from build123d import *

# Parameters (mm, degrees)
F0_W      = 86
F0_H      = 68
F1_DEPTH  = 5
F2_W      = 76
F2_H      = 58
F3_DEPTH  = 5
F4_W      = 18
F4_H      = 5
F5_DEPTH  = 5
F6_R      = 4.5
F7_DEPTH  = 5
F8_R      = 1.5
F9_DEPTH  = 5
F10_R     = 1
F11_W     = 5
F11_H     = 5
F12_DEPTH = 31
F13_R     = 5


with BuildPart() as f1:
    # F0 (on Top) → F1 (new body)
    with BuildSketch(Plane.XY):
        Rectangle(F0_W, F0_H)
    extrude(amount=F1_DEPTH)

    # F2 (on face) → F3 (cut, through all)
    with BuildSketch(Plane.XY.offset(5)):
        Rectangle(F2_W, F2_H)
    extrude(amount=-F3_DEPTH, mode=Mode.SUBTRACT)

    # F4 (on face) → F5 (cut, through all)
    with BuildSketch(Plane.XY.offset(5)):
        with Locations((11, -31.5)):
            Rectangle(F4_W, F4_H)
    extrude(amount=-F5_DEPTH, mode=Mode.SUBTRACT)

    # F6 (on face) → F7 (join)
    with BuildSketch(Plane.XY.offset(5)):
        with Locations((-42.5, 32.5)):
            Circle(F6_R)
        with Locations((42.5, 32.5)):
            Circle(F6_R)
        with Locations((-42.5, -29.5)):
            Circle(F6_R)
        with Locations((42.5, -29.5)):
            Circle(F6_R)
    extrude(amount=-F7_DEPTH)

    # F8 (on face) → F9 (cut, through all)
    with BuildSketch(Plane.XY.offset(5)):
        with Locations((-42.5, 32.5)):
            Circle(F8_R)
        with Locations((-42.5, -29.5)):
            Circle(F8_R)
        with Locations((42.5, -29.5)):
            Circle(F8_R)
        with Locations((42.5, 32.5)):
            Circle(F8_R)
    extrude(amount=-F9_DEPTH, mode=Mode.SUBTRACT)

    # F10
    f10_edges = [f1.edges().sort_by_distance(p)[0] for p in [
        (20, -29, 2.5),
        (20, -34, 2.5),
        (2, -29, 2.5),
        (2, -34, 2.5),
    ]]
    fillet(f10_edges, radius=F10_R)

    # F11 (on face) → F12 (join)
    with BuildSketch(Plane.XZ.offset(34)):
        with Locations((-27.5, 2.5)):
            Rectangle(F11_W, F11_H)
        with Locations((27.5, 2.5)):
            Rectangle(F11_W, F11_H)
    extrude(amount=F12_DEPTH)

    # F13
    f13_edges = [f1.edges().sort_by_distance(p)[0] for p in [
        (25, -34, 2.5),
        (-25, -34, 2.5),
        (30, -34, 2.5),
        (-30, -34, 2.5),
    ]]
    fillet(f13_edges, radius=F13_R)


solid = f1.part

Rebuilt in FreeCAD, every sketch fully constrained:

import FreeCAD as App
import Part
import Sketcher

V = App.Vector


def edges_at(feature, points):
    """Names of the edges that pass closest to the given points."""
    edges = feature.Shape.Edges
    near = lambda p: min(range(len(edges)), key=lambda i: edges[i].distToShape(Part.Vertex(*p))[0])
    return sorted({f"Edge{near(p) + 1}" for p in points})

doc = App.newDocument("Part")
body = doc.addObject("PartDesign::Body", "Body")

# Sketch on XY plane
sketch1 = doc.addObject("Sketcher::SketchObject", "Sketch")
body.addObject(sketch1)
sketch1.AttachmentSupport = (doc.XY_Plane, [""])
sketch1.MapMode = "FlatFace"
sketch1.addGeometry([
    Part.LineSegment(V(-43, 34, 0), V(-43, -34, 0)),
    Part.LineSegment(V(-43, -34, 0), V(43, -34, 0)),
    Part.LineSegment(V(43, -34, 0), V(43, 34, 0)),
    Part.LineSegment(V(43, 34, 0), V(-43, 34, 0)),
], False)
sketch1.addConstraint([
    Sketcher.Constraint("Coincident", 0, 2, 1, 1),
    Sketcher.Constraint("Coincident", 1, 2, 2, 1),
    Sketcher.Constraint("Coincident", 2, 2, 3, 1),
    Sketcher.Constraint("Coincident", 3, 2, 0, 1),
    Sketcher.Constraint("Vertical", 0),
    Sketcher.Constraint("Horizontal", 1),
    Sketcher.Constraint("Vertical", 2),
    Sketcher.Constraint("Horizontal", 3),
    Sketcher.Constraint("Symmetric", 0, 2, 2, 2, -1, 1),
    Sketcher.Constraint("DistanceX", 1, 1, 1, 2, 86.0),
    Sketcher.Constraint("DistanceY", 0, 2, 0, 1, 68.0),
])
pad1 = doc.addObject("PartDesign::Pad", "Pad")
body.addObject(pad1)
pad1.Profile = sketch1
pad1.Length = 5

# Sketch on XY plane
sketch2 = doc.addObject("Sketcher::SketchObject", "Sketch001")
body.addObject(sketch2)
sketch2.AttachmentSupport = (doc.XY_Plane, [""])
sketch2.MapMode = "FlatFace"
sketch2.AttachmentOffset = App.Placement(V(0, 0, 5), App.Rotation())
sketch2.addGeometry([
    Part.LineSegment(V(-38, 29, 0), V(-38, -29, 0)),
    Part.LineSegment(V(-38, -29, 0), V(38, -29, 0)),
    Part.LineSegment(V(38, -29, 0), V(38, 29, 0)),
    Part.LineSegment(V(38, 29, 0), V(-38, 29, 0)),
], False)
sketch2.addConstraint([
    Sketcher.Constraint("Coincident", 0, 2, 1, 1),
    Sketcher.Constraint("Coincident", 1, 2, 2, 1),
    Sketcher.Constraint("Coincident", 2, 2, 3, 1),
    Sketcher.Constraint("Coincident", 3, 2, 0, 1),
    Sketcher.Constraint("Vertical", 0),
    Sketcher.Constraint("Horizontal", 1),
    Sketcher.Constraint("Vertical", 2),
    Sketcher.Constraint("Horizontal", 3),
    Sketcher.Constraint("Symmetric", 0, 2, 2, 2, -1, 1),
    Sketcher.Constraint("DistanceX", 1, 1, 1, 2, 76.0),
    Sketcher.Constraint("DistanceY", 0, 2, 0, 1, 58.0),
])
pocket1 = doc.addObject("PartDesign::Pocket", "Pocket")
body.addObject(pocket1)
pocket1.Profile = sketch2
pocket1.Type = "ThroughAll"

# Sketch on XY plane
sketch3 = doc.addObject("Sketcher::SketchObject", "Sketch002")
body.addObject(sketch3)
sketch3.AttachmentSupport = (doc.XY_Plane, [""])
sketch3.MapMode = "FlatFace"
sketch3.AttachmentOffset = App.Placement(V(0, 0, 5), App.Rotation())
sketch3.addGeometry([
    Part.LineSegment(V(2, -29, 0), V(2, -34, 0)),
    Part.LineSegment(V(2, -34, 0), V(20, -34, 0)),
    Part.LineSegment(V(20, -34, 0), V(20, -29, 0)),
    Part.LineSegment(V(20, -29, 0), V(2, -29, 0)),
], False)
sketch3.addConstraint([
    Sketcher.Constraint("Coincident", 0, 2, 1, 1),
    Sketcher.Constraint("Coincident", 1, 2, 2, 1),
    Sketcher.Constraint("Coincident", 2, 2, 3, 1),
    Sketcher.Constraint("Coincident", 3, 2, 0, 1),
    Sketcher.Constraint("Vertical", 0),
    Sketcher.Constraint("Horizontal", 1),
    Sketcher.Constraint("Vertical", 2),
    Sketcher.Constraint("Horizontal", 3),
    Sketcher.Constraint("DistanceX", 1, 1, 1, 2, 18.0),
    Sketcher.Constraint("DistanceY", 0, 2, 0, 1, 5.0),
    Sketcher.Constraint("DistanceX", -1, 1, 0, 2, 2.0),
    Sketcher.Constraint("DistanceY", 0, 2, -1, 1, 34.0),
])
pocket2 = doc.addObject("PartDesign::Pocket", "Pocket001")
body.addObject(pocket2)
pocket2.Profile = sketch3
pocket2.Type = "ThroughAll"

# Sketch on XY plane
sketch4 = doc.addObject("Sketcher::SketchObject", "Sketch003")
body.addObject(sketch4)
sketch4.AttachmentSupport = (doc.XY_Plane, [""])
sketch4.MapMode = "FlatFace"
sketch4.AttachmentOffset = App.Placement(V(0, 0, 5), App.Rotation())
sketch4.addGeometry([
    Part.Circle(V(-42.5, 32.5, 0), V(0, 0, 1), 4.5),
    Part.Circle(V(42.5, 32.5, 0), V(0, 0, 1), 4.5),
    Part.Circle(V(-42.5, -29.5, 0), V(0, 0, 1), 4.5),
    Part.Circle(V(42.5, -29.5, 0), V(0, 0, 1), 4.5),
], False)
sketch4.addConstraint([
    Sketcher.Constraint("Equal", 0, 1),
    Sketcher.Constraint("Equal", 1, 2),
    Sketcher.Constraint("Equal", 2, 3),
    Sketcher.Constraint("Symmetric", 0, 3, 1, 3, -2),
    Sketcher.Constraint("Symmetric", 2, 3, 3, 3, -2),
    Sketcher.Constraint("Vertical", 0, 3, 2, 3),
    Sketcher.Constraint("Diameter", 0, 9.0),
    Sketcher.Constraint("DistanceX", 0, 3, 1, 3, 85.0),
    Sketcher.Constraint("DistanceY", 2, 3, 0, 3, 62.0),
    Sketcher.Constraint("DistanceY", -1, 1, 0, 3, 32.5),
])
pad2 = doc.addObject("PartDesign::Pad", "Pad001")
body.addObject(pad2)
pad2.Profile = sketch4
pad2.Length = 5
pad2.Reversed = True

# Sketch on XY plane
sketch5 = doc.addObject("Sketcher::SketchObject", "Sketch004")
body.addObject(sketch5)
sketch5.AttachmentSupport = (doc.XY_Plane, [""])
sketch5.MapMode = "FlatFace"
sketch5.AttachmentOffset = App.Placement(V(0, 0, 5), App.Rotation())
sketch5.addGeometry([
    Part.Circle(V(-42.5, 32.5, 0), V(0, 0, 1), 1.5),
    Part.Circle(V(-42.5, -29.5, 0), V(0, 0, 1), 1.5),
    Part.Circle(V(42.5, -29.5, 0), V(0, 0, 1), 1.5),
    Part.Circle(V(42.5, 32.5, 0), V(0, 0, 1), 1.5),
], False)
sketch5.addConstraint([
    Sketcher.Constraint("Equal", 0, 1),
    Sketcher.Constraint("Equal", 1, 2),
    Sketcher.Constraint("Equal", 2, 3),
    Sketcher.Constraint("Symmetric", 1, 3, 2, 3, -2),
    Sketcher.Constraint("Symmetric", 0, 3, 3, 3, -2),
    Sketcher.Constraint("Vertical", 0, 3, 1, 3),
    Sketcher.Constraint("Diameter", 0, 3.0),
    Sketcher.Constraint("DistanceY", 1, 3, 0, 3, 62.0),
    Sketcher.Constraint("DistanceX", 1, 3, 2, 3, 85.0),
    Sketcher.Constraint("DistanceY", -1, 1, 0, 3, 32.5),
])
pocket3 = doc.addObject("PartDesign::Pocket", "Pocket002")
body.addObject(pocket3)
pocket3.Profile = sketch5
pocket3.Type = "ThroughAll"
doc.recompute()

fillet = doc.addObject("PartDesign::Fillet", "Fillet")
body.addObject(fillet)
fillet.Base = (pocket3, edges_at(pocket3, [
    (20, -29, 2.5),
    (20, -34, 2.5),
    (2, -29, 2.5),
    (2, -34, 2.5),
]))
fillet.Radius = 1

# Sketch on XZ plane
sketch6 = doc.addObject("Sketcher::SketchObject", "Sketch005")
body.addObject(sketch6)
sketch6.AttachmentSupport = (doc.XZ_Plane, [""])
sketch6.MapMode = "FlatFace"
sketch6.AttachmentOffset = App.Placement(V(0, 0, 34), App.Rotation())
sketch6.addGeometry([
    Part.LineSegment(V(-30, 5, 0), V(-30, 0, 0)),  # 0
    Part.LineSegment(V(-30, 0, 0), V(-25, 0, 0)),  # 1
    Part.LineSegment(V(-25, 0, 0), V(-25, 5, 0)),  # 2
    Part.LineSegment(V(-25, 5, 0), V(-30, 5, 0)),  # 3
    Part.LineSegment(V(25, 5, 0), V(25, 0, 0)),  # 4
    Part.LineSegment(V(25, 0, 0), V(30, 0, 0)),  # 5
    Part.LineSegment(V(30, 0, 0), V(30, 5, 0)),  # 6
    Part.LineSegment(V(30, 5, 0), V(25, 5, 0)),  # 7
], False)
sketch6.addConstraint([
    Sketcher.Constraint("Coincident", 0, 2, 1, 1),
    Sketcher.Constraint("Coincident", 1, 2, 2, 1),
    Sketcher.Constraint("Coincident", 2, 2, 3, 1),
    Sketcher.Constraint("Coincident", 3, 2, 0, 1),
    Sketcher.Constraint("Coincident", 4, 2, 5, 1),
    Sketcher.Constraint("Coincident", 5, 2, 6, 1),
    Sketcher.Constraint("Coincident", 6, 2, 7, 1),
    Sketcher.Constraint("Coincident", 7, 2, 4, 1),
    Sketcher.Constraint("Vertical", 0),
    Sketcher.Constraint("Horizontal", 1),
    Sketcher.Constraint("Vertical", 2),
    Sketcher.Constraint("Horizontal", 3),
    Sketcher.Constraint("Vertical", 4),
    Sketcher.Constraint("Horizontal", 5),
    Sketcher.Constraint("Vertical", 6),
    Sketcher.Constraint("Horizontal", 7),
    Sketcher.Constraint("Symmetric", 1, 2, 4, 2, -1, 1),
    Sketcher.Constraint("Symmetric", 0, 2, 5, 2, -2),
    Sketcher.Constraint("Horizontal", 3, 2, 6, 2),
    Sketcher.Constraint("Equal", 7, 0),
    Sketcher.Constraint("DistanceX", 1, 1, 1, 2, 5.0),
    Sketcher.Constraint("DistanceX", 0, 2, -1, 1, 30.0),
])
pad3 = doc.addObject("PartDesign::Pad", "Pad002")
body.addObject(pad3)
pad3.Profile = sketch6
pad3.Length = 31
doc.recompute()

fillet2 = doc.addObject("PartDesign::Fillet", "Fillet001")
body.addObject(fillet2)
fillet2.Base = (pad3, edges_at(pad3, [
    (25, -34, 2.5),
    (-25, -34, 2.5),
    (30, -34, 2.5),
    (-30, -34, 2.5),
]))
fillet2.Radius = 5

doc.recompute()
